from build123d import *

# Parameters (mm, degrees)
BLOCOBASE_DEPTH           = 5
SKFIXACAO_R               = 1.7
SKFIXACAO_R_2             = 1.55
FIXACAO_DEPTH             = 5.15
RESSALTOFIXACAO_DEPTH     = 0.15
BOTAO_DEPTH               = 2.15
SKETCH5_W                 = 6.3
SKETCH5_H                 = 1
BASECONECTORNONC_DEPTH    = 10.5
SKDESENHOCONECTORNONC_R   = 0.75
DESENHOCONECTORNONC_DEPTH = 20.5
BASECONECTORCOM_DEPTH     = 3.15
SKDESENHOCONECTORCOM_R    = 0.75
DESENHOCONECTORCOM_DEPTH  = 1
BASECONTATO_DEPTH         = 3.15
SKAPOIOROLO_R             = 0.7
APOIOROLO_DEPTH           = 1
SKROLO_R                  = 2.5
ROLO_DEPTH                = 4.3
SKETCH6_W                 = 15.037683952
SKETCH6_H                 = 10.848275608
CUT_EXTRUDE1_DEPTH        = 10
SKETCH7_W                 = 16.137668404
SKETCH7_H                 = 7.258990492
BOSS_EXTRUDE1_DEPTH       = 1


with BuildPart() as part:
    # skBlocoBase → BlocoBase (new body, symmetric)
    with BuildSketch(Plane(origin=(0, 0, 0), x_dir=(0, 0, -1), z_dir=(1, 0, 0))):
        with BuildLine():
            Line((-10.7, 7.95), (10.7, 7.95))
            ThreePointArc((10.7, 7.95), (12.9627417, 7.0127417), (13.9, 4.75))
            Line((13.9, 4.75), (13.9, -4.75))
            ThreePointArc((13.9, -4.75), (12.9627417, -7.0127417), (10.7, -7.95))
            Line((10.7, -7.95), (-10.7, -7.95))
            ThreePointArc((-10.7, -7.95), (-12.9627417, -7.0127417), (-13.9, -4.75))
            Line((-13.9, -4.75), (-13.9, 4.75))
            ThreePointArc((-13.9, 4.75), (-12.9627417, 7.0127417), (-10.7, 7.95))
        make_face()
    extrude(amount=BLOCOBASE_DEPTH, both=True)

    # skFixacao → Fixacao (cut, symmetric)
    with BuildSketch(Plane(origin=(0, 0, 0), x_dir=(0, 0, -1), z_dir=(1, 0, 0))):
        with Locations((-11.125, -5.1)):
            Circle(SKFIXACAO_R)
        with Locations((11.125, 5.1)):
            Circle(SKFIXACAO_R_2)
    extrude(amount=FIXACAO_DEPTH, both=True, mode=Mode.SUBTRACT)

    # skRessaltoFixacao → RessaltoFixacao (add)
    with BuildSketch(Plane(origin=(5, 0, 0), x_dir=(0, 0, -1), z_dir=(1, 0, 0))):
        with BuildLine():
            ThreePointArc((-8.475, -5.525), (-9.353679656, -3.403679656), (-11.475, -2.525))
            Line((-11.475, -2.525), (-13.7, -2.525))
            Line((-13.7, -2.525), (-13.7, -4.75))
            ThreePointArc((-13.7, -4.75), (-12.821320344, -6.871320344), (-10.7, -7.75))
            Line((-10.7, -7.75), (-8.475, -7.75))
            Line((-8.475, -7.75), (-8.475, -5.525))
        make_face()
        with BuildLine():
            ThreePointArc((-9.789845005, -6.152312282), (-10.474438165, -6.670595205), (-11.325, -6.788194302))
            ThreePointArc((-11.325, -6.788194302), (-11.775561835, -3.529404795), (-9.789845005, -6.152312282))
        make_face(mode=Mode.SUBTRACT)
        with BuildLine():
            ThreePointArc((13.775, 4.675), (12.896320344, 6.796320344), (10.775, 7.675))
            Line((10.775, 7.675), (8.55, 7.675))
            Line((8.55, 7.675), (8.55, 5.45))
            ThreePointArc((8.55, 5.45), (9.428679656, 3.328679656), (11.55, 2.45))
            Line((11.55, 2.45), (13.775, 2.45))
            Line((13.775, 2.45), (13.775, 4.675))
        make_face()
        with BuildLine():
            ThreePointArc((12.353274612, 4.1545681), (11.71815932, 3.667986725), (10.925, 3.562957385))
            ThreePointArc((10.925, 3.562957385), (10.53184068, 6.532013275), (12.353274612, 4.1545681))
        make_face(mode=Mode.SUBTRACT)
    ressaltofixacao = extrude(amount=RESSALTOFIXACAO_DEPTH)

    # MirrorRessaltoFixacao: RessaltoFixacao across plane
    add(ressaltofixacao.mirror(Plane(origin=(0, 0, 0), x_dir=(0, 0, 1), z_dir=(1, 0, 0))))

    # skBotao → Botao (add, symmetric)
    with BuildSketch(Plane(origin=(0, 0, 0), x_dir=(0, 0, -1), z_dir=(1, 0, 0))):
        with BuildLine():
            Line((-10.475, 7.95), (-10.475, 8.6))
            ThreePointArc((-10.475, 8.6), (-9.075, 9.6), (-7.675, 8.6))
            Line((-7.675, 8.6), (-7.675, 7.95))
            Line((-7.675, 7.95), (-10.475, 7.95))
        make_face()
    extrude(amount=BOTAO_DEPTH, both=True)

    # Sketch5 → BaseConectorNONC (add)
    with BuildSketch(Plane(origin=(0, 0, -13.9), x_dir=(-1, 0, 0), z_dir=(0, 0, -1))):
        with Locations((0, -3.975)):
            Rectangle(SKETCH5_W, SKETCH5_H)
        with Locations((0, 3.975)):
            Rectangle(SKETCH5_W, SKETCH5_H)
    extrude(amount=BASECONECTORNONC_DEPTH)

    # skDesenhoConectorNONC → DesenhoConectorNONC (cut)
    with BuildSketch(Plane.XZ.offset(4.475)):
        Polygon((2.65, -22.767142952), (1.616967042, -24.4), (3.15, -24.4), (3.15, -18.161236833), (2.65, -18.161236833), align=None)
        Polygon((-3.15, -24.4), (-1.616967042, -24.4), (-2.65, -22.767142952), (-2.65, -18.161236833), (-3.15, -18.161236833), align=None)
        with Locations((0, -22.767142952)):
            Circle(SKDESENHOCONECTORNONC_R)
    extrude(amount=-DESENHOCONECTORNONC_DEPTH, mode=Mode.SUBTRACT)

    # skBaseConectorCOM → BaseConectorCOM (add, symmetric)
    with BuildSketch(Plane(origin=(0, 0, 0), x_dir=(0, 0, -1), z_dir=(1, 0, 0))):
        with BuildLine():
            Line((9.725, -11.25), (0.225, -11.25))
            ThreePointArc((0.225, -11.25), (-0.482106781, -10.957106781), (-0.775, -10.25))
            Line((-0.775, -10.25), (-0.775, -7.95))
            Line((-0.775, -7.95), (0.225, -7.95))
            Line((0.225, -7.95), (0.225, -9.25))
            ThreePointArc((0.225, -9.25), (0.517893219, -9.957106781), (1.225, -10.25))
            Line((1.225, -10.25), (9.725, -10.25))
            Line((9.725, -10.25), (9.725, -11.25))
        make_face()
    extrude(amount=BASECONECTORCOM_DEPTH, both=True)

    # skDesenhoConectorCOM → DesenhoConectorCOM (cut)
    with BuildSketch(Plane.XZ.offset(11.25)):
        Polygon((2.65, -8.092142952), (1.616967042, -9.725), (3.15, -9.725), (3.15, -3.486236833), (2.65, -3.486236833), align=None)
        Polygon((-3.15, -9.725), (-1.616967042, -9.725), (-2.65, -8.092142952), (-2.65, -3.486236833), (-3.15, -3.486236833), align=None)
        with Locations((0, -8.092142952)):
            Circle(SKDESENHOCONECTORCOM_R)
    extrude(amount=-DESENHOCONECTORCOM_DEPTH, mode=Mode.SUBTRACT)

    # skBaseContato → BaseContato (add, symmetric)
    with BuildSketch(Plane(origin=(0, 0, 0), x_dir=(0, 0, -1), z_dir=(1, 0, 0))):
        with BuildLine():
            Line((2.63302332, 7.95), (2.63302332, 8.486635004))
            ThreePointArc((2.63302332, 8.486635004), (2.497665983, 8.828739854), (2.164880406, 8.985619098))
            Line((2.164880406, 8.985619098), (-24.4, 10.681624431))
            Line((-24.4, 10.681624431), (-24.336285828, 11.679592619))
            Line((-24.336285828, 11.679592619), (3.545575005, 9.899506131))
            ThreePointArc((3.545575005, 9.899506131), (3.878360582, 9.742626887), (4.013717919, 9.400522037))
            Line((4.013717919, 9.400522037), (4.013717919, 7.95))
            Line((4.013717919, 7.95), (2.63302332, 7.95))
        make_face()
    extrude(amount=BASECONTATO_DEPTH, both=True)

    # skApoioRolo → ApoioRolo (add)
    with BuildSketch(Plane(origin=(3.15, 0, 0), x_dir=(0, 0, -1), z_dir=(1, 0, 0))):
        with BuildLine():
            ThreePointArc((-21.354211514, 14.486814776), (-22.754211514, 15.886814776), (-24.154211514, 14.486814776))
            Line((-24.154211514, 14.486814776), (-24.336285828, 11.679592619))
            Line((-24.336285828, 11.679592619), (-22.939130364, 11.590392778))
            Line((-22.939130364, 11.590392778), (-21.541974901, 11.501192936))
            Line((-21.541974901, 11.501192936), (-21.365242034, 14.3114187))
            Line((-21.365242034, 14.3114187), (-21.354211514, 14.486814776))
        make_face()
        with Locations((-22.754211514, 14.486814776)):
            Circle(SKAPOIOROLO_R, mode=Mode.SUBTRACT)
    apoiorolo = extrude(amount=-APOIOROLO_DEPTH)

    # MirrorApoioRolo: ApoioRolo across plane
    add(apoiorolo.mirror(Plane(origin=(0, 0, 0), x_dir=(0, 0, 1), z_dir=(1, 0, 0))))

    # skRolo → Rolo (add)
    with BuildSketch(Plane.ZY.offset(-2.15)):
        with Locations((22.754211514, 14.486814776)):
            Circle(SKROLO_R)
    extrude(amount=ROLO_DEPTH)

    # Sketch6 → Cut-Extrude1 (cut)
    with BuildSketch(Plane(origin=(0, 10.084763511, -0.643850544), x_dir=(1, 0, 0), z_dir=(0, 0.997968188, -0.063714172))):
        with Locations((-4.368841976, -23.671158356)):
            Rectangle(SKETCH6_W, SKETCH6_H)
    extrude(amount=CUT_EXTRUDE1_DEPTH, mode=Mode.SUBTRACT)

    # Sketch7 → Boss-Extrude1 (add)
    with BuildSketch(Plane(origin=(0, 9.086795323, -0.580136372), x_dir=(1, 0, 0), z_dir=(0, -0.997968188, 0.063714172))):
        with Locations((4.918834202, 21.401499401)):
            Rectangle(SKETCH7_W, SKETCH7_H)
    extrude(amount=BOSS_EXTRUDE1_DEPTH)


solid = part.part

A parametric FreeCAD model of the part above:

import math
import FreeCAD as App
import Part
import Sketcher

doc = App.newDocument("Part")
params = doc.addObject("Spreadsheet::Sheet", "Params")
for row, (alias, value) in enumerate([
    ("sketch1_radius", "3.2 mm"),
    ("sketch1_width", "9.5 mm"),
    ("sketch1_height", "21.4 mm"),
    ("pad1_length", "10 mm"),
    ("sketch2_diameter", "3.4 mm"),
    ("sketch2_diameter2", "3.1 mm"),
    ("pocket1_length", "10.3 mm"),
    ("sketch3_radius", "3 mm"),
    ("sketch3_radius2", "1.7 mm"),
    ("sketch3_radius3", "1.55 mm"),
    ("pad2_length", "0.15 mm"),
    ("sketch4_radius", "1.48 mm"),
    ("sketch4_height", "2.8 mm"),
    ("sketch4_width", "0.65 mm"),
    ("pad3_length", "4.3 mm"),
    ("sketch5_height", "1 mm"),
    ("sketch5_width", "6.3 mm"),
    ("pad4_length", "10.5 mm"),
    ("sketch6_diameter", "1.5 mm"),
    ("sketch6_width", "0.5 mm"),
    ("pocket2_length", "20.5 mm"),
    ("sketch7_radius", "1 mm"),
    ("sketch7_width", "1.3 mm"),
    ("sketch7_height", "9.5 mm"),
    ("pad5_length", "6.3 mm"),
    ("sketch8_diameter", "1.5 mm"),
    ("sketch8_width", "0.5 mm"),
    ("pocket3_length", "1 mm"),
    ("sketch9_radius", "0.5 mm"),
    ("sketch9_length", "1 mm"),
    ("pad6_length", "6.3 mm"),
    ("sketch10_diameter", "1.4 mm"),
    ("sketch10_radius", "1.4 mm"),
    ("sketch10_length", "1.4 mm"),
    ("pad7_length", "1 mm"),
    ("sketch11_diameter", "5 mm"),
    ("pad8_length", "4.3 mm"),
    ("pocket4_length", "10 mm"),
    ("pad9_length", "1 mm"),
], start=1):
    params.set(f"A{row}", alias)
    params.set(f"B{row}", "=" + value)
    params.setAlias(f"B{row}", alias)

body = doc.addObject("PartDesign::Body", "Body")

sketch1 = body.newObject("Sketcher::SketchObject", "Sketch")
sketch1.AttachmentSupport = (doc.getObject("YZ_Plane"), [""])
sketch1.MapMode = "FlatFace"
sketch1.addGeometry([
    Part.LineSegment(App.Vector(8, -10.7, 0), App.Vector(8, 10.7, 0)),
    Part.ArcOfCircle(Part.Circle(App.Vector(4.8, 10.7, 0), App.Vector(0, 0, 1), 3.2), math.radians(0), math.radians(90)),
    Part.LineSegment(App.Vector(4.8, 13.9, 0), App.Vector(-4.8, 13.9, 0)),
    Part.ArcOfCircle(Part.Circle(App.Vector(-4.8, 10.7, 0), App.Vector(0, 0, 1), 3.2), math.radians(90), math.radians(180)),
    Part.LineSegment(App.Vector(-8, 10.7, 0), App.Vector(-8, -10.7, 0)),
    Part.ArcOfCircle(Part.Circle(App.Vector(-4.8, -10.7, 0), App.Vector(0, 0, 1), 3.2), math.radians(180), math.radians(270)),
    Part.LineSegment(App.Vector(-4.8, -13.9, 0), App.Vector(4.8, -13.9, 0)),
    Part.ArcOfCircle(Part.Circle(App.Vector(4.8, -10.7, 0), App.Vector(0, 0, 1), 3.2), math.radians(-90), math.radians(0)),
], False)
sketch1.addConstraint([
    Sketcher.Constraint("Tangent", 0, 2, 1, 1),
    Sketcher.Constraint("Tangent", 1, 2, 2, 1),
    Sketcher.Constraint("Tangent", 2, 2, 3, 1),
    Sketcher.Constraint("Tangent", 3, 2, 4, 1),
    Sketcher.Constraint("Tangent", 4, 2, 5, 1),
    Sketcher.Constraint("Tangent", 5, 2, 6, 1),
    Sketcher.Constraint("Tangent", 6, 2, 7, 1),
    Sketcher.Constraint("Tangent", 7, 2, 0, 1),
    Sketcher.Constraint("Vertical", 0),
    Sketcher.Constraint("Horizontal", 2),
    Sketcher.Constraint("Vertical", 4),
    Sketcher.Constraint("Horizontal", 6),
    Sketcher.Constraint("Equal", 1, 3),
    Sketcher.Constraint("Equal", 3, 5),
    Sketcher.Constraint("Equal", 5, 7),
    Sketcher.Constraint("Symmetric", 1, 3, 5, 3, -1, 1),
    Sketcher.Constraint("Radius", 1, 3.2),
    Sketcher.Constraint("DistanceX", 2, 2, 2, 1, 9.5),
    Sketcher.Constraint("DistanceY", 0, 1, 0, 2, 21.4),
])
sketch1.setExpression("Constraints[16]", "Params.sketch1_radius")
sketch1.setExpression("Constraints[17]", "Params.sketch1_width")
sketch1.setExpression("Constraints[18]", "Params.sketch1_height")
pad1 = body.newObject("PartDesign::Pad", "Pad")
pad1.Profile = sketch1
pad1.setExpression("Length", "Params.pad1_length")
pad1.Midplane = True

sketch2 = body.newObject("Sketcher::SketchObject", "Sketch001")
sketch2.AttachmentSupport = (doc.getObject("YZ_Plane"), [""])
sketch2.MapMode = "FlatFace"
sketch2.addGeometry([
    Part.Circle(App.Vector(-5.1, 11.1, 0), App.Vector(0, 0, 1), 1.7),
    Part.Circle(App.Vector(5.1, -11.1, 0), App.Vector(0, 0, 1), 1.6),
], False)
sketch2.addConstraint([
    Sketcher.Constraint("Symmetric", 0, 3, 1, 3, -1, 1),
    Sketcher.Constraint("Diameter", 0, 3.4),
    Sketcher.Constraint("Diameter", 1, 3.1),
    Sketcher.Constraint("DistanceX", 0, 3, -1, 1, 5.1),
    Sketcher.Constraint("DistanceY", 1, 3, 0, 3, 22.25),
])
sketch2.setExpression("Constraints[1]", "Params.sketch2_diameter")
sketch2.setExpression("Constraints[2]", "Params.sketch2_diameter2")
pocket1 = body.newObject("PartDesign::Pocket", "Pocket")
pocket1.Profile = sketch2
pocket1.setExpression("Length", "Params.pocket1_length")
pocket1.Midplane = True

sketch3 = body.newObject("Sketcher::SketchObject", "Sketch002")
sketch3.AttachmentSupport = (doc.getObject("YZ_Plane"), [""])
sketch3.MapMode = "FlatFace"
sketch3.AttachmentOffset = App.Placement(App.Vector(0, 0, 5), App.Rotation())
sketch3.addGeometry([
    Part.ArcOfCircle(Part.Circle(App.Vector(-5.5, 11.5, 0), App.Vector(0, 0, 1), 3), math.radians(-90), math.radians(0)),
    Part.LineSegment(App.Vector(-2.5, 11.5, 0), App.Vector(-2.5, 13.7, 0)),
    Part.LineSegment(App.Vector(-2.5, 13.7, 0), App.Vector(-4.8, 13.7, 0)),
    Part.ArcOfCircle(Part.Circle(App.Vector(-4.8, 10.7, 0), App.Vector(0, 0, 1), 3), math.radians(90), math.radians(180)),
    Part.LineSegment(App.Vector(-7.8, 10.7, 0), App.Vector(-7.8, 8.5, 0)),
    Part.LineSegment(App.Vector(-7.8, 8.5, 0), App.Vector(-5.5, 8.5, 0)),
    Part.ArcOfCircle(Part.Circle(App.Vector(-5.1, 11.1, 0), App.Vector(0, 0, 1), 1.7), math.radians(-128), math.radians(173)),
    Part.ArcOfCircle(Part.Circle(App.Vector(-5.1, 11.1, 0), App.Vector(0, 0, 1), 1.7), math.radians(173), math.radians(232)),
    Part.ArcOfCircle(Part.Circle(App.Vector(4.7, -10.8, 0), App.Vector(0, 0, 1), 3), math.radians(-90), math.radians(0)),
    Part.LineSegment(App.Vector(7.7, -10.8, 0), App.Vector(7.7, -8.6, 0)),
    Part.LineSegment(App.Vector(7.7, -8.6, 0), App.Vector(5.5, -8.6, 0)),
    Part.ArcOfCircle(Part.Circle(App.Vector(5.4, -11.5, 0), App.Vector(0, 0, 1), 3), math.radians(90), math.radians(180)),
    Part.LineSegment(App.Vector(2.5, -11.6, 0), App.Vector(2.5, -13.8, 0)),
    Part.LineSegment(App.Vector(2.5, -13.8, 0), App.Vector(4.7, -13.8, 0)),
    Part.ArcOfCircle(Part.Circle(App.Vector(5.1, -11.1, 0), App.Vector(0, 0, 1), 1.6), math.radians(-128), math.radians(173)),
    Part.ArcOfCircle(Part.Circle(App.Vector(5.1, -11.1, 0), App.Vector(0, 0, 1), 1.6), math.radians(173), math.radians(232)),
], False)
sketch3.addConstraint([
    Sketcher.Constraint("Tangent", 0, 2, 1, 1),
    Sketcher.Constraint("Coincident", 1, 2, 2, 1),
    Sketcher.Constraint("Tangent", 2, 2, 3, 1),
    Sketcher.Constraint("Tangent", 3, 2, 4, 1),
    Sketcher.Constraint("Coincident", 4, 2, 5, 1),
    Sketcher.Constraint("Tangent", 5, 2, 0, 1),
    Sketcher.Constraint("Tangent", 6, 1, 7, 2),
    Sketcher.Constraint("Coincident", 7, 1, 6, 2),
    Sketcher.Constraint("Tangent", 8, 2, 9, 1),
    Sketcher.Constraint("Coincident", 9, 2, 10, 1),
    Sketcher.Constraint("Tangent", 10, 2, 11, 1),
    Sketcher.Constraint("Tangent", 11, 2, 12, 1),
    Sketcher.Constraint("Coincident", 12, 2, 13, 1),
    Sketcher.Constraint("Tangent", 13, 2, 8, 1),
    Sketcher.Constraint("Tangent", 14, 1, 15, 2),
    Sketcher.Constraint("Coincident", 15, 1, 14, 2),
    Sketcher.Constraint("Vertical", 1),
    Sketcher.Constraint("Horizontal", 2),
    Sketcher.Constraint("Vertical", 4),
    Sketcher.Constraint("Horizontal", 5),
    Sketcher.Constraint("Vertical", 9),
    Sketcher.Constraint("Horizontal", 10),
    Sketcher.Constraint("Vertical", 12),
    Sketcher.Constraint("Horizontal", 13),
    Sketcher.Constraint("Equal", 0, 3),
    Sketcher.Constraint("Equal", 3, 8),
    Sketcher.Constraint("Equal", 8, 11),
    Sketcher.Constraint("Symmetric", 6, 3, 14, 3, -1, 1),
    Sketcher.Constraint("Equal", 5, 10),
    Sketcher.Constraint("Equal", 13, 1),
    Sketcher.Constraint("Equal", 4, 9),
    Sketcher.Constraint("Radius", 0, 3.0),
    Sketcher.Constraint("Radius", 6, 1.7),
    Sketcher.Constraint("Radius", 14, 1.55),
    Sketcher.Constraint("DistanceY", -1, 1, 3, 3, 10.7),
    Sketcher.Constraint("DistanceX", 6, 3, -1, 1, 5.1),
    Sketcher.Constraint("DistanceY", 8, 3, 6, 3, 21.9),
    Sketcher.Constraint("DistanceX", 0, 3, 8, 3, 10.2),
    Sketcher.Constraint("DistanceY", 6, 3, 7, 1, 0.2),
    Sketcher.Constraint("DistanceY", 14, 3, 15, 1, 0.2),
    Sketcher.Constraint("DistanceX", 2, 2, 2, 1, 2.225),
    Sketcher.Constraint("DistanceX", 3, 3, -1, 1, 4.75),
    Sketcher.Constraint("DistanceY", 11, 3, -1, 1, 11.55),
    Sketcher.Constraint("DistanceX", -1, 1, 14, 1, 4.154568),
    Sketcher.Constraint("DistanceX", 6, 1, -1, 1, 6.152312),
])
sketch3.setExpression("Constraints[31]", "Params.sketch3_radius")
sketch3.setExpression("Constraints[32]", "Params.sketch3_radius2")
sketch3.setExpression("Constraints[33]", "Params.sketch3_radius3")
pad2 = body.newObject("PartDesign::Pad", "Pad001")
pad2.Profile = sketch3
pad2.setExpression("Length", "Params.pad2_length")
doc.recompute()

mirrored = body.newObject("PartDesign::Mirrored", "Mirrored")
mirrored.Originals = [pad2]
mirrored.MirrorPlane = (doc.getObject("YZ_Plane"), [""])
body.Tip = mirrored

sketch4 = body.newObject("Sketcher::SketchObject", "Sketch003")
sketch4.AttachmentSupport = (doc.getObject("YZ_Plane"), [""])
sketch4.MapMode = "FlatFace"
sketch4.addGeometry([
    Part.LineSegment(App.Vector(8.6, 10.5, 0), App.Vector(8, 10.5, 0)),
    Part.LineSegment(App.Vector(8, 10.5, 0), App.Vector(8, 7.7, 0)),
    Part.LineSegment(App.Vector(8, 7.7, 0), App.Vector(8.6, 7.7, 0)),
    Part.ArcOfCircle(Part.Circle(App.Vector(8.1, 9.1, 0), App.Vector(0, 0, 1), 1.5), math.radians(-71), math.radians(71)),
], False)
sketch4.addConstraint([
    Sketcher.Constraint("Coincident", 0, 2, 1, 1),
    Sketcher.Constraint("Coincident", 1, 2, 2, 1),
    Sketcher.Constraint("Coincident", 2, 2, 3, 1),
    Sketcher.Constraint("Coincident", 3, 2, 0, 1),
    Sketcher.Constraint("Horizontal", 0),
    Sketcher.Constraint("Vertical", 1),
    Sketcher.Constraint("Horizontal", 2),
    Sketcher.Constraint("Vertical", 2, 2, 3, 2),
    Sketcher.Constraint("Radius", 3, 1.48),
    Sketcher.Constraint("DistanceY", 1, 2, 1, 1, 2.8),
    Sketcher.Constraint("DistanceX", 0, 2, 0, 1, 0.65),
    Sketcher.Constraint("DistanceX", -1, 1, 2, 2, 8.6),
    Sketcher.Constraint("DistanceY", -1, 1, 3, 3, 9.075),
])
sketch4.setExpression("Constraints[8]", "Params.sketch4_radius")
sketch4.setExpression("Constraints[9]", "Params.sketch4_height")
sketch4.setExpression("Constraints[10]", "Params.sketch4_width")
pad3 = body.newObject("PartDesign::Pad", "Pad002")
pad3.Profile = sketch4
pad3.setExpression("Length", "Params.pad3_length")
pad3.Midplane = True

sketch5 = body.newObject("Sketcher::SketchObject", "Sketch004")
sketch5.AttachmentSupport = (doc.getObject("XY_Plane"), [""])
sketch5.MapMode = "FlatFace"
sketch5.AttachmentOffset = App.Placement(App.Vector(0, 0, -13.9), App.Rotation())
sketch5.addGeometry([
    Part.LineSegment(App.Vector(3.1, -3.5, 0), App.Vector(3.1, -4.5, 0)),
    Part.LineSegment(App.Vector(3.1, -4.5, 0), App.Vector(-3.1, -4.5, 0)),
    Part.LineSegment(App.Vector(-3.1, -4.5, 0), App.Vector(-3.1, -3.5, 0)),
    Part.LineSegment(App.Vector(-3.1, -3.5, 0), App.Vector(3.1, -3.5, 0)),
    Part.LineSegment(App.Vector(3.1, 4.5, 0), App.Vector(3.1, 3.5, 0)),
    Part.LineSegment(App.Vector(3.1, 3.5, 0), App.Vector(-3.1, 3.5, 0)),
    Part.LineSegment(App.Vector(-3.1, 3.5, 0), App.Vector(-3.1, 4.5, 0)),
    Part.LineSegment(App.Vector(-3.1, 4.5, 0), App.Vector(3.1, 4.5, 0)),
], False)
sketch5.addConstraint([
    Sketcher.Constraint("Coincident", 0, 2, 1, 1),
    Sketcher.Constraint("Coincident", 1, 2, 2, 1),
    Sketcher.Constraint("Coincident", 2, 2, 3, 1),
    Sketcher.Constraint("Coincident", 3, 2, 0, 1),
    Sketcher.Constraint("Coincident", 4, 2, 5, 1),
    Sketcher.Constraint("Coincident", 5, 2, 6, 1),
    Sketcher.Constraint("Coincident", 6, 2, 7, 1),
    Sketcher.Constraint("Coincident", 7, 2, 4, 1),
    Sketcher.Constraint("Vertical", 0),
    Sketcher.Constraint("Horizontal", 1),
    Sketcher.Constraint("Vertical", 2),
    Sketcher.Constraint("Horizontal", 3),
    Sketcher.Constraint("Vertical", 4),
    Sketcher.Constraint("Horizontal", 5),
    Sketcher.Constraint("Vertical", 6),
    Sketcher.Constraint("Horizontal", 7),
    Sketcher.Constraint("Symmetric", 2, 2, 4, 2, -1, 1),
    Sketcher.Constraint("Symmetric", 0, 2, 6, 2, -1, 1),
    Sketcher.Constraint("Vertical", 3, 2, 4, 2),
    Sketcher.Constraint("DistanceY", 0, 2, 0, 1, 1.0),
    Sketcher.Constraint("DistanceX", 1, 2, 1, 1, 6.3),
    Sketcher.Constraint("DistanceY", 3, 2, 4, 2, 6.95),
])
sketch5.setExpression("Constraints[19]", "Params.sketch5_height")
sketch5.setExpression("Constraints[20]", "Params.sketch5_width")
pad4 = body.newObject("PartDesign::Pad", "Pad003")
pad4.Profile = sketch5
pad4.setExpression("Length", "Params.pad4_length")
pad4.Reversed = True

sketch6 = body.newObject("Sketcher::SketchObject", "Sketch005")
sketch6.AttachmentSupport = (doc.getObject("XZ_Plane"), [""])
sketch6.MapMode = "FlatFace"
sketch6.AttachmentOffset = App.Placement(App.Vector(0, 0, 4.475), App.Rotation())
sketch6.addGeometry([
    Part.LineSegment(App.Vector(2.6, -22.8, 0), App.Vector(1.6, -24.4, 0)),
    Part.LineSegment(App.Vector(1.6, -24.4, 0), App.Vector(3.1, -24.4, 0)),
    Part.LineSegment(App.Vector(3.1, -24.4, 0), App.Vector(3.1, -18.2, 0)),
    Part.LineSegment(App.Vector(3.1, -18.2, 0), App.Vector(2.6, -18.2, 0)),
    Part.LineSegment(App.Vector(2.6, -18.2, 0), App.Vector(2.6, -22.8, 0)),
    Part.LineSegment(App.Vector(-3.1, -24.4, 0), App.Vector(-1.6, -24.4, 0)),
    Part.LineSegment(App.Vector(-1.6, -24.4, 0), App.Vector(-2.6, -22.8, 0)),
    Part.LineSegment(App.Vector(-2.6, -22.8, 0), App.Vector(-2.6, -18.2, 0)),
    Part.LineSegment(App.Vector(-2.6, -18.2, 0), App.Vector(-3.1, -18.2, 0)),
    Part.LineSegment(App.Vector(-3.1, -18.2, 0), App.Vector(-3.1, -24.4, 0)),
    Part.Circle(App.Vector(0, -22.8, 0), App.Vector(0, 0, 1), 0.8),
], False)
sketch6.addConstraint([
    Sketcher.Constraint("Coincident", 0, 2, 1, 1),
    Sketcher.Constraint("Coincident", 1, 2, 2, 1),
    Sketcher.Constraint("Coincident", 2, 2, 3, 1),
    Sketcher.Constraint("Coincident", 3, 2, 4, 1),
    Sketcher.Constraint("Coincident", 4, 2, 0, 1),
    Sketcher.Constraint("Coincident", 5, 2, 6, 1),
    Sketcher.Constraint("Coincident", 6, 2, 7, 1),
    Sketcher.Constraint("Coincident", 7, 2, 8, 1),
    Sketcher.Constraint("Coincident", 8, 2, 9, 1),
    Sketcher.Constraint("Coincident", 9, 2, 5, 1),
    Sketcher.Constraint("Horizontal", 1),
    Sketcher.Constraint("Vertical", 2),
    Sketcher.Constraint("Horizontal", 3),
    Sketcher.Constraint("Vertical", 4),
    Sketcher.Constraint("Horizontal", 5),
    Sketcher.Constraint("Vertical", 7),
    Sketcher.Constraint("Horizontal", 8),
    Sketcher.Constraint("Vertical", 9),
    Sketcher.Constraint("Symmetric", 0, 2, 5, 2, -2),
    Sketcher.Constraint("Symmetric", 4, 2, 6, 2, -2),
    Sketcher.Constraint("Symmetric", 2, 2, 8, 2, -2),
    Sketcher.Constraint("PointOnObject", 10, 3, -2),
    Sketcher.Constraint("Horizontal", 10, 3, 4, 2),
    Sketcher.Constraint("Diameter", 10, 1.5),
    Sketcher.Constraint("DistanceX", 3, 2, 3, 1, 0.5),
    Sketcher.Constraint("DistanceY", 0, 2, -1, 1, 24.4),
    Sketcher.Constraint("DistanceX", 6, 2, 4, 2, 5.3),
    Sketcher.Constraint("DistanceX", 1, 1, 1, 2, 1.533033),
    Sketcher.Constraint("DistanceY", 2, 1, 2, 2, 6.238763),
    Sketcher.Constraint("DistanceY", 4, 2, 4, 1, 4.605906),
])
sketch6.setExpression("Constraints[23]", "Params.sketch6_diameter")
sketch6.setExpression("Constraints[24]", "Params.sketch6_width")
pocket2 = body.newObject("PartDesign::Pocket", "Pocket001")
pocket2.Profile = sketch6
pocket2.setExpression("Length", "Params.pocket2_length")

sketch7 = body.newObject("Sketcher::SketchObject", "Sketch006")
sketch7.AttachmentSupport = (doc.getObject("YZ_Plane"), [""])
sketch7.MapMode = "FlatFace"
sketch7.addGeometry([
    Part.LineSegment(App.Vector(-11.2, -0.2, 0), App.Vector(-11.2, -9.7, 0)),
    Part.LineSegment(App.Vector(-11.2, -9.7, 0), App.Vector(-10.2, -9.7, 0)),
    Part.LineSegment(App.Vector(-10.2, -9.7, 0), App.Vector(-10.2, -1.2, 0)),
    Part.ArcOfCircle(Part.Circle(App.Vector(-9.2, -1.2, 0), App.Vector(0, 0, 1), 1), math.radians(90), math.radians(180)),
    Part.LineSegment(App.Vector(-9.2, -0.2, 0), App.Vector(-8, -0.2, 0)),
    Part.LineSegment(App.Vector(-8, -0.2, 0), App.Vector(-8, 0.8, 0)),
    Part.LineSegment(App.Vector(-8, 0.8, 0), App.Vector(-10.2, 0.8, 0)),
    Part.ArcOfCircle(Part.Circle(App.Vector(-10.2, -0.2, 0), App.Vector(0, 0, 1), 1), math.radians(90), math.radians(180)),
], False)
sketch7.addConstraint([
    Sketcher.Constraint("Coincident", 0, 2, 1, 1),
    Sketcher.Constraint("Coincident", 1, 2, 2, 1),
    Sketcher.Constraint("Tangent", 2, 2, 3, 2),
    Sketcher.Constraint("Tangent", 3, 1, 4, 1),
    Sketcher.Constraint("Coincident", 4, 2, 5, 1),
    Sketcher.Constraint("Coincident", 5, 2, 6, 1),
    Sketcher.Constraint("Tangent", 6, 2, 7, 1),
    Sketcher.Constraint("Tangent", 7, 2, 0, 1),
    Sketcher.Constraint("Vertical", 0),
    Sketcher.Constraint("Horizontal", 1),
    Sketcher.Constraint("Vertical", 2),
    Sketcher.Constraint("Horizontal", 4),
    Sketcher.Constraint("Vertical", 5),
    Sketcher.Constraint("Horizontal", 6),
    Sketcher.Constraint("Equal", 3, 7),
    Sketcher.Constraint("Horizontal", 7, 3, 3, 1),
    Sketcher.Constraint("Vertical", 7, 3, 1, 2),
    Sketcher.Constraint("Radius", 3, 1.0),
    Sketcher.Constraint("DistanceX", 4, 1, 4, 2, 1.3),
    Sketcher.Constraint("DistanceY", 0, 2, 0, 1, 9.5),
    Sketcher.Constraint("DistanceX", 3, 3, -1, 1, 9.25),
    Sketcher.Constraint("DistanceY", 3, 3, -1, 1, 1.225),
])
sketch7.setExpression("Constraints[17]", "Params.sketch7_radius")
sketch7.setExpression("Constraints[18]", "Params.sketch7_width")
sketch7.setExpression("Constraints[19]", "Params.sketch7_height")
pad5 = body.newObject("PartDesign::Pad", "Pad004")
pad5.Profile = sketch7
pad5.setExpression("Length", "Params.pad5_length")
pad5.Midplane = True

sketch8 = body.newObject("Sketcher::SketchObject", "Sketch007")
sketch8.AttachmentSupport = (doc.getObject("XZ_Plane"), [""])
sketch8.MapMode = "FlatFace"
sketch8.AttachmentOffset = App.Placement(App.Vector(0, 0, 11.25), App.Rotation())
sketch8.addGeometry([
    Part.LineSegment(App.Vector(2.6, -8.1, 0), App.Vector(1.6, -9.7, 0)),
    Part.LineSegment(App.Vector(1.6, -9.7, 0), App.Vector(3.1, -9.7, 0)),
    Part.LineSegment(App.Vector(3.1, -9.7, 0), App.Vector(3.1, -3.5, 0)),
    Part.LineSegment(App.Vector(3.1, -3.5, 0), App.Vector(2.6, -3.5, 0)),
    Part.LineSegment(App.Vector(2.6, -3.5, 0), App.Vector(2.6, -8.1, 0)),
    Part.LineSegment(App.Vector(-3.1, -9.7, 0), App.Vector(-1.6, -9.7, 0)),
    Part.LineSegment(App.Vector(-1.6, -9.7, 0), App.Vector(-2.6, -8.1, 0)),
    Part.LineSegment(App.Vector(-2.6, -8.1, 0), App.Vector(-2.6, -3.5, 0)),
    Part.LineSegment(App.Vector(-2.6, -3.5, 0), App.Vector(-3.1, -3.5, 0)),
    Part.LineSegment(App.Vector(-3.1, -3.5, 0), App.Vector(-3.1, -9.7, 0)),
    Part.Circle(App.Vector(0, -8.1, 0), App.Vector(0, 0, 1), 0.8),
], False)
sketch8.addConstraint([
    Sketcher.Constraint("Coincident", 0, 2, 1, 1),
    Sketcher.Constraint("Coincident", 1, 2, 2, 1),
    Sketcher.Constraint("Coincident", 2, 2, 3, 1),
    Sketcher.Constraint("Coincident", 3, 2, 4, 1),
    Sketcher.Constraint("Coincident", 4, 2, 0, 1),
    Sketcher.Constraint("Coincident", 5, 2, 6, 1),
    Sketcher.Constraint("Coincident", 6, 2, 7, 1),
    Sketcher.Constraint("Coincident", 7, 2, 8, 1),
    Sketcher.Constraint("Coincident", 8, 2, 9, 1),
    Sketcher.Constraint("Coincident", 9, 2, 5, 1),
    Sketcher.Constraint("Horizontal", 1),
    Sketcher.Constraint("Vertical", 2),
    Sketcher.Constraint("Horizontal", 3),
    Sketcher.Constraint("Vertical", 4),
    Sketcher.Constraint("Horizontal", 5),
    Sketcher.Constraint("Vertical", 7),
    Sketcher.Constraint("Horizontal", 8),
    Sketcher.Constraint("Vertical", 9),
    Sketcher.Constraint("Symmetric", 0, 2, 5, 2, -2),
    Sketcher.Constraint("Symmetric", 4, 2, 6, 2, -2),
    Sketcher.Constraint("Symmetric", 2, 2, 8, 2, -2),
    Sketcher.Constraint("PointOnObject", 10, 3, -2),
    Sketcher.Constraint("Horizontal", 10, 3, 4, 2),
    Sketcher.Constraint("Diameter", 10, 1.5),
    Sketcher.Constraint("DistanceX", 3, 2, 3, 1, 0.5),
    Sketcher.Constraint("DistanceX", 6, 2, 4, 2, 5.3),
    Sketcher.Constraint("DistanceY", 0, 2, -1, 1, 9.725),
    Sketcher.Constraint("DistanceX", 1, 1, 1, 2, 1.533033),
    Sketcher.Constraint("DistanceY", 2, 1, 2, 2, 6.238763),
    Sketcher.Constraint("DistanceY", 4, 2, 4, 1, 4.605906),
])
sketch8.setExpression("Constraints[23]", "Params.sketch8_diameter")
sketch8.setExpression("Constraints[24]", "Params.sketch8_width")
pocket3 = body.newObject("PartDesign::Pocket", "Pocket002")
pocket3.Profile = sketch8
pocket3.setExpression("Length", "Params.pocket3_length")

sketch9 = body.newObject("Sketcher::SketchObject", "Sketch008")
sketch9.AttachmentSupport = (doc.getObject("YZ_Plane"), [""])
sketch9.MapMode = "FlatFace"
sketch9.addGeometry([
    Part.LineSegment(App.Vector(8.5, -2.6, 0), App.Vector(8, -2.6, 0)),
    Part.LineSegment(App.Vector(8, -2.6, 0), App.Vector(8, -4, 0)),
    Part.LineSegment(App.Vector(8, -4, 0), App.Vector(9.4, -4, 0)),
    Part.ArcOfCircle(Part.Circle(App.Vector(9.4, -3.5, 0), App.Vector(0, 0, 1), 0.5), math.radians(-90), math.radians(-4)),
    Part.LineSegment(App.Vector(9.9, -3.5, 0), App.Vector(11.7, 24.3, 0)),
    Part.LineSegment(App.Vector(11.7, 24.3, 0), App.Vector(10.7, 24.4, 0)),
    Part.LineSegment(App.Vector(10.7, 24.4, 0), App.Vector(9, -2.2, 0)),
    Part.ArcOfCircle(Part.Circle(App.Vector(8.5, -2.1, 0), App.Vector(0, 0, 1), 0.5), math.radians(-90), math.radians(-4)),
], False)
sketch9.addConstraint([
    Sketcher.Constraint("Coincident", 0, 2, 1, 1),
    Sketcher.Constraint("Coincident", 1, 2, 2, 1),
    Sketcher.Constraint("Tangent", 2, 2, 3, 1),
    Sketcher.Constraint("Tangent", 3, 2, 4, 1),
    Sketcher.Constraint("Coincident", 4, 2, 5, 1),
    Sketcher.Constraint("Coincident", 5, 2, 6, 1),
    Sketcher.Constraint("Tangent", 6, 2, 7, 2),
    Sketcher.Constraint("Tangent", 7, 1, 0, 1),
    Sketcher.Constraint("Horizontal", 0),
    Sketcher.Constraint("Vertical", 1),
    Sketcher.Constraint("Horizontal", 2),
    Sketcher.Constraint("Equal", 3, 7),
    Sketcher.Constraint("Perpendicular", 4, 5),
    Sketcher.Constraint("Perpendicular", 5, 6),
    Sketcher.Constraint("Radius", 3, 0.5),
    Sketcher.Constraint("Distance", 5, 1.0),
    Sketcher.Constraint("DistanceY", -1, 1, 5, 2, 24.4),
    Sketcher.Constraint("DistanceX", -1, 1, 0, 2, 7.95),
    Sketcher.Constraint("DistanceX", 0, 2, 0, 1, 0.536635),
    Sketcher.Constraint("DistanceX", 2, 1, 2, 2, 1.450522),
    Sketcher.Constraint("DistanceY", 1, 2, 1, 1, 1.380695),
    Sketcher.Constraint("DistanceY", 6, 2, -1, 1, 2.16488),
])
sketch9.setExpression("Constraints[14]", "Params.sketch9_radius")
sketch9.setExpression("Constraints[15]", "Params.sketch9_length")
pad6 = body.newObject("PartDesign::Pad", "Pad005")
pad6.Profile = sketch9
pad6.setExpression("Length", "Params.pad6_length")
pad6.Midplane = True

sketch10 = body.newObject("Sketcher::SketchObject", "Sketch009")
sketch10.AttachmentSupport = (doc.getObject("YZ_Plane"), [""])
sketch10.MapMode = "FlatFace"
sketch10.AttachmentOffset = App.Placement(App.Vector(0, 0, 3.15), App.Rotation())
sketch10.addGeometry([
    Part.ArcOfCircle(Part.Circle(App.Vector(14.49, 22.75, 0), App.Vector(0, 0, 1), 1.4), math.radians(-90), math.radians(90)),
    Part.LineSegment(App.Vector(14.49, 24.15, 0), App.Vector(11.68, 24.34, 0)),
    Part.LineSegment(App.Vector(11.68, 24.34, 0), App.Vector(11.59, 22.94, 0)),
    Part.LineSegment(App.Vector(11.59, 22.94, 0), App.Vector(11.5, 21.54, 0)),
    Part.LineSegment(App.Vector(11.5, 21.54, 0), App.Vector(14.31, 21.37, 0)),
    Part.LineSegment(App.Vector(14.31, 21.37, 0), App.Vector(14.49, 21.35, 0)),
    Part.Circle(App.Vector(14.49, 22.75, 0), App.Vector(0, 0, 1), 0.7),
], False)
sketch10.addConstraint([
    Sketcher.Constraint("Coincident", 0, 2, 1, 1),
    Sketcher.Constraint("Coincident", 1, 2, 2, 1),
    Sketcher.Constraint("Coincident", 2, 2, 3, 1),
    Sketcher.Constraint("Coincident", 3, 2, 4, 1),
    Sketcher.Constraint("Coincident", 4, 2, 5, 1),
    Sketcher.Constraint("Coincident", 5, 2, 0, 1),
    Sketcher.Constraint("Coincident", 6, 3, 0, 3),
    Sketcher.Constraint("Parallel", 2, 3),
    Sketcher.Constraint("Parallel", 4, 5),
    Sketcher.Constraint("Vertical", 6, 3, 0, 2),
    Sketcher.Constraint("Vertical", 0, 2, 5, 2),
    Sketcher.Constraint("Equal", 2, 3),
    Sketcher.Constraint("Diameter", 6, 1.4),
    Sketcher.Constraint("Radius", 0, 1.4),
    Sketcher.Constraint("Distance", 2, 1.4),
    Sketcher.Constraint("DistanceX", 2, 2, 1, 2, 0.0892),
    Sketcher.Constraint("Distance", 1, 2.813121),
    Sketcher.Constraint("DistanceY", -1, 1, 0, 3, 22.754212),
    Sketcher.Constraint("DistanceY", -1, 1, 2, 2, 22.93913),
    Sketcher.Constraint("DistanceX", -1, 1, 4, 2, 14.311419),
    Sketcher.Constraint("DistanceY", 4, 2, 0, 3, 1.388969),
])
sketch10.setExpression("Constraints[12]", "Params.sketch10_diameter")
sketch10.setExpression("Constraints[13]", "Params.sketch10_radius")
sketch10.setExpression("Constraints[14]", "Params.sketch10_length")
pad7 = body.newObject("PartDesign::Pad", "Pad006")
pad7.Profile = sketch10
pad7.setExpression("Length", "Params.pad7_length")
pad7.Reversed = True
doc.recompute()

mirrored2 = body.newObject("PartDesign::Mirrored", "Mirrored001")
mirrored2.Originals = [pad7]
mirrored2.MirrorPlane = (doc.getObject("YZ_Plane"), [""])
body.Tip = mirrored2

sketch11 = body.newObject("Sketcher::SketchObject", "Sketch010")
sketch11.AttachmentSupport = (doc.getObject("YZ_Plane"), [""])
sketch11.MapMode = "FlatFace"
sketch11.AttachmentOffset = App.Placement(App.Vector(0, 0, 2.15), App.Rotation())
sketch11.addGeometry(Part.Circle(App.Vector(14.5, 22.8, 0), App.Vector(0, 0, 1), 2.5), False)
sketch11.addConstraint([
    Sketcher.Constraint("Diameter", 0, 5.0),
    Sketcher.Constraint("DistanceY", -1, 1, 0, 3, 22.754212),
    Sketcher.Constraint("DistanceX", -1, 1, 0, 3, 14.486815),
])
sketch11.setExpression("Constraints[0]", "Params.sketch11_diameter")
pad8 = body.newObject("PartDesign::Pad", "Pad007")
pad8.Profile = sketch11
pad8.setExpression("Length", "Params.pad8_length")
pad8.Reversed = True

sketch12 = body.newObject("Sketcher::SketchObject", "Sketch011")
sketch12.Placement = App.Placement(App.Vector(0, 10.084764, -0.643851), App.Rotation(App.Vector(1, 0, 0), App.Vector(0, -0.063714172, -0.997968188), App.Vector(0, 0.997968188, -0.063714172), "ZXY"))
sketch12.addGeometry([
    Part.LineSegment(App.Vector(-12, -18, 0), App.Vector(-12, -29, 0)),
    Part.LineSegment(App.Vector(-12, -29, 0), App.Vector(3, -29, 0)),
    Part.LineSegment(App.Vector(3, -29, 0), App.Vector(3, -18, 0)),
    Part.LineSegment(App.Vector(3, -18, 0), App.Vector(-12, -18, 0)),
], False)
sketch12.addConstraint([
    Sketcher.Constraint("Coincident", 0, 2, 1, 1),
    Sketcher.Constraint("Coincident", 1, 2, 2, 1),
    Sketcher.Constraint("Coincident", 2, 2, 3, 1),
    Sketcher.Constraint("Coincident", 3, 2, 0, 1),
    Sketcher.Constraint("Vertical", 0),
    Sketcher.Constraint("Horizontal", 1),
    Sketcher.Constraint("Vertical", 2),
    Sketcher.Constraint("Horizontal", 3),
    Sketcher.Constraint("DistanceX", -1, 1, 1, 2, 3.15),
    Sketcher.Constraint("DistanceX", 1, 1, 1, 2, 15.037684),
    Sketcher.Constraint("DistanceY", 0, 2, 0, 1, 10.848276),
    Sketcher.Constraint("DistanceY", 2, 2, -1, 1, 18.247021),
])
pocket4 = body.newObject("PartDesign::Pocket", "Pocket003")
pocket4.Profile = sketch12
pocket4.setExpression("Length", "Params.pocket4_length")
pocket4.Reversed = True

sketch13 = body.newObject("Sketcher::SketchObject", "Sketch012")
sketch13.Placement = App.Placement(App.Vector(0, 9.086795, -0.580136), App.Rotation(App.Vector(1, 0, 0), App.Vector(0, 0.063714172, 0.997968188), App.Vector(0, -0.997968188, 0.063714172), "ZXY"))
sketch13.addGeometry([
    Part.LineSegment(App.Vector(-3, 25, 0), App.Vector(-3, 18, 0)),
    Part.LineSegment(App.Vector(-3, 18, 0), App.Vector(13, 18, 0)),
    Part.LineSegment(App.Vector(13, 18, 0), App.Vector(13, 25, 0)),
    Part.LineSegment(App.Vector(13, 25, 0), App.Vector(-3, 25, 0)),
], False)
sketch13.addConstraint([
    Sketcher.Constraint("Coincident", 0, 2, 1, 1),
    Sketcher.Constraint("Coincident", 1, 2, 2, 1),
    Sketcher.Constraint("Coincident", 2, 2, 3, 1),
    Sketcher.Constraint("Coincident", 3, 2, 0, 1),
    Sketcher.Constraint("Vertical", 0),
    Sketcher.Constraint("Horizontal", 1),
    Sketcher.Constraint("Vertical", 2),
    Sketcher.Constraint("Horizontal", 3),
    Sketcher.Constraint("DistanceX", 0, 2, -1, 1, 3.15),
    Sketcher.Constraint("DistanceX", 1, 1, 1, 2, 16.137668),
    Sketcher.Constraint("DistanceY", 0, 2, 0, 1, 7.25899),
    Sketcher.Constraint("DistanceY", -1, 1, 0, 2, 17.772004),
])
pad9 = body.newObject("PartDesign::Pad", "Pad008")
pad9.Profile = sketch13
pad9.setExpression("Length", "Params.pad9_length")

doc.recompute()
